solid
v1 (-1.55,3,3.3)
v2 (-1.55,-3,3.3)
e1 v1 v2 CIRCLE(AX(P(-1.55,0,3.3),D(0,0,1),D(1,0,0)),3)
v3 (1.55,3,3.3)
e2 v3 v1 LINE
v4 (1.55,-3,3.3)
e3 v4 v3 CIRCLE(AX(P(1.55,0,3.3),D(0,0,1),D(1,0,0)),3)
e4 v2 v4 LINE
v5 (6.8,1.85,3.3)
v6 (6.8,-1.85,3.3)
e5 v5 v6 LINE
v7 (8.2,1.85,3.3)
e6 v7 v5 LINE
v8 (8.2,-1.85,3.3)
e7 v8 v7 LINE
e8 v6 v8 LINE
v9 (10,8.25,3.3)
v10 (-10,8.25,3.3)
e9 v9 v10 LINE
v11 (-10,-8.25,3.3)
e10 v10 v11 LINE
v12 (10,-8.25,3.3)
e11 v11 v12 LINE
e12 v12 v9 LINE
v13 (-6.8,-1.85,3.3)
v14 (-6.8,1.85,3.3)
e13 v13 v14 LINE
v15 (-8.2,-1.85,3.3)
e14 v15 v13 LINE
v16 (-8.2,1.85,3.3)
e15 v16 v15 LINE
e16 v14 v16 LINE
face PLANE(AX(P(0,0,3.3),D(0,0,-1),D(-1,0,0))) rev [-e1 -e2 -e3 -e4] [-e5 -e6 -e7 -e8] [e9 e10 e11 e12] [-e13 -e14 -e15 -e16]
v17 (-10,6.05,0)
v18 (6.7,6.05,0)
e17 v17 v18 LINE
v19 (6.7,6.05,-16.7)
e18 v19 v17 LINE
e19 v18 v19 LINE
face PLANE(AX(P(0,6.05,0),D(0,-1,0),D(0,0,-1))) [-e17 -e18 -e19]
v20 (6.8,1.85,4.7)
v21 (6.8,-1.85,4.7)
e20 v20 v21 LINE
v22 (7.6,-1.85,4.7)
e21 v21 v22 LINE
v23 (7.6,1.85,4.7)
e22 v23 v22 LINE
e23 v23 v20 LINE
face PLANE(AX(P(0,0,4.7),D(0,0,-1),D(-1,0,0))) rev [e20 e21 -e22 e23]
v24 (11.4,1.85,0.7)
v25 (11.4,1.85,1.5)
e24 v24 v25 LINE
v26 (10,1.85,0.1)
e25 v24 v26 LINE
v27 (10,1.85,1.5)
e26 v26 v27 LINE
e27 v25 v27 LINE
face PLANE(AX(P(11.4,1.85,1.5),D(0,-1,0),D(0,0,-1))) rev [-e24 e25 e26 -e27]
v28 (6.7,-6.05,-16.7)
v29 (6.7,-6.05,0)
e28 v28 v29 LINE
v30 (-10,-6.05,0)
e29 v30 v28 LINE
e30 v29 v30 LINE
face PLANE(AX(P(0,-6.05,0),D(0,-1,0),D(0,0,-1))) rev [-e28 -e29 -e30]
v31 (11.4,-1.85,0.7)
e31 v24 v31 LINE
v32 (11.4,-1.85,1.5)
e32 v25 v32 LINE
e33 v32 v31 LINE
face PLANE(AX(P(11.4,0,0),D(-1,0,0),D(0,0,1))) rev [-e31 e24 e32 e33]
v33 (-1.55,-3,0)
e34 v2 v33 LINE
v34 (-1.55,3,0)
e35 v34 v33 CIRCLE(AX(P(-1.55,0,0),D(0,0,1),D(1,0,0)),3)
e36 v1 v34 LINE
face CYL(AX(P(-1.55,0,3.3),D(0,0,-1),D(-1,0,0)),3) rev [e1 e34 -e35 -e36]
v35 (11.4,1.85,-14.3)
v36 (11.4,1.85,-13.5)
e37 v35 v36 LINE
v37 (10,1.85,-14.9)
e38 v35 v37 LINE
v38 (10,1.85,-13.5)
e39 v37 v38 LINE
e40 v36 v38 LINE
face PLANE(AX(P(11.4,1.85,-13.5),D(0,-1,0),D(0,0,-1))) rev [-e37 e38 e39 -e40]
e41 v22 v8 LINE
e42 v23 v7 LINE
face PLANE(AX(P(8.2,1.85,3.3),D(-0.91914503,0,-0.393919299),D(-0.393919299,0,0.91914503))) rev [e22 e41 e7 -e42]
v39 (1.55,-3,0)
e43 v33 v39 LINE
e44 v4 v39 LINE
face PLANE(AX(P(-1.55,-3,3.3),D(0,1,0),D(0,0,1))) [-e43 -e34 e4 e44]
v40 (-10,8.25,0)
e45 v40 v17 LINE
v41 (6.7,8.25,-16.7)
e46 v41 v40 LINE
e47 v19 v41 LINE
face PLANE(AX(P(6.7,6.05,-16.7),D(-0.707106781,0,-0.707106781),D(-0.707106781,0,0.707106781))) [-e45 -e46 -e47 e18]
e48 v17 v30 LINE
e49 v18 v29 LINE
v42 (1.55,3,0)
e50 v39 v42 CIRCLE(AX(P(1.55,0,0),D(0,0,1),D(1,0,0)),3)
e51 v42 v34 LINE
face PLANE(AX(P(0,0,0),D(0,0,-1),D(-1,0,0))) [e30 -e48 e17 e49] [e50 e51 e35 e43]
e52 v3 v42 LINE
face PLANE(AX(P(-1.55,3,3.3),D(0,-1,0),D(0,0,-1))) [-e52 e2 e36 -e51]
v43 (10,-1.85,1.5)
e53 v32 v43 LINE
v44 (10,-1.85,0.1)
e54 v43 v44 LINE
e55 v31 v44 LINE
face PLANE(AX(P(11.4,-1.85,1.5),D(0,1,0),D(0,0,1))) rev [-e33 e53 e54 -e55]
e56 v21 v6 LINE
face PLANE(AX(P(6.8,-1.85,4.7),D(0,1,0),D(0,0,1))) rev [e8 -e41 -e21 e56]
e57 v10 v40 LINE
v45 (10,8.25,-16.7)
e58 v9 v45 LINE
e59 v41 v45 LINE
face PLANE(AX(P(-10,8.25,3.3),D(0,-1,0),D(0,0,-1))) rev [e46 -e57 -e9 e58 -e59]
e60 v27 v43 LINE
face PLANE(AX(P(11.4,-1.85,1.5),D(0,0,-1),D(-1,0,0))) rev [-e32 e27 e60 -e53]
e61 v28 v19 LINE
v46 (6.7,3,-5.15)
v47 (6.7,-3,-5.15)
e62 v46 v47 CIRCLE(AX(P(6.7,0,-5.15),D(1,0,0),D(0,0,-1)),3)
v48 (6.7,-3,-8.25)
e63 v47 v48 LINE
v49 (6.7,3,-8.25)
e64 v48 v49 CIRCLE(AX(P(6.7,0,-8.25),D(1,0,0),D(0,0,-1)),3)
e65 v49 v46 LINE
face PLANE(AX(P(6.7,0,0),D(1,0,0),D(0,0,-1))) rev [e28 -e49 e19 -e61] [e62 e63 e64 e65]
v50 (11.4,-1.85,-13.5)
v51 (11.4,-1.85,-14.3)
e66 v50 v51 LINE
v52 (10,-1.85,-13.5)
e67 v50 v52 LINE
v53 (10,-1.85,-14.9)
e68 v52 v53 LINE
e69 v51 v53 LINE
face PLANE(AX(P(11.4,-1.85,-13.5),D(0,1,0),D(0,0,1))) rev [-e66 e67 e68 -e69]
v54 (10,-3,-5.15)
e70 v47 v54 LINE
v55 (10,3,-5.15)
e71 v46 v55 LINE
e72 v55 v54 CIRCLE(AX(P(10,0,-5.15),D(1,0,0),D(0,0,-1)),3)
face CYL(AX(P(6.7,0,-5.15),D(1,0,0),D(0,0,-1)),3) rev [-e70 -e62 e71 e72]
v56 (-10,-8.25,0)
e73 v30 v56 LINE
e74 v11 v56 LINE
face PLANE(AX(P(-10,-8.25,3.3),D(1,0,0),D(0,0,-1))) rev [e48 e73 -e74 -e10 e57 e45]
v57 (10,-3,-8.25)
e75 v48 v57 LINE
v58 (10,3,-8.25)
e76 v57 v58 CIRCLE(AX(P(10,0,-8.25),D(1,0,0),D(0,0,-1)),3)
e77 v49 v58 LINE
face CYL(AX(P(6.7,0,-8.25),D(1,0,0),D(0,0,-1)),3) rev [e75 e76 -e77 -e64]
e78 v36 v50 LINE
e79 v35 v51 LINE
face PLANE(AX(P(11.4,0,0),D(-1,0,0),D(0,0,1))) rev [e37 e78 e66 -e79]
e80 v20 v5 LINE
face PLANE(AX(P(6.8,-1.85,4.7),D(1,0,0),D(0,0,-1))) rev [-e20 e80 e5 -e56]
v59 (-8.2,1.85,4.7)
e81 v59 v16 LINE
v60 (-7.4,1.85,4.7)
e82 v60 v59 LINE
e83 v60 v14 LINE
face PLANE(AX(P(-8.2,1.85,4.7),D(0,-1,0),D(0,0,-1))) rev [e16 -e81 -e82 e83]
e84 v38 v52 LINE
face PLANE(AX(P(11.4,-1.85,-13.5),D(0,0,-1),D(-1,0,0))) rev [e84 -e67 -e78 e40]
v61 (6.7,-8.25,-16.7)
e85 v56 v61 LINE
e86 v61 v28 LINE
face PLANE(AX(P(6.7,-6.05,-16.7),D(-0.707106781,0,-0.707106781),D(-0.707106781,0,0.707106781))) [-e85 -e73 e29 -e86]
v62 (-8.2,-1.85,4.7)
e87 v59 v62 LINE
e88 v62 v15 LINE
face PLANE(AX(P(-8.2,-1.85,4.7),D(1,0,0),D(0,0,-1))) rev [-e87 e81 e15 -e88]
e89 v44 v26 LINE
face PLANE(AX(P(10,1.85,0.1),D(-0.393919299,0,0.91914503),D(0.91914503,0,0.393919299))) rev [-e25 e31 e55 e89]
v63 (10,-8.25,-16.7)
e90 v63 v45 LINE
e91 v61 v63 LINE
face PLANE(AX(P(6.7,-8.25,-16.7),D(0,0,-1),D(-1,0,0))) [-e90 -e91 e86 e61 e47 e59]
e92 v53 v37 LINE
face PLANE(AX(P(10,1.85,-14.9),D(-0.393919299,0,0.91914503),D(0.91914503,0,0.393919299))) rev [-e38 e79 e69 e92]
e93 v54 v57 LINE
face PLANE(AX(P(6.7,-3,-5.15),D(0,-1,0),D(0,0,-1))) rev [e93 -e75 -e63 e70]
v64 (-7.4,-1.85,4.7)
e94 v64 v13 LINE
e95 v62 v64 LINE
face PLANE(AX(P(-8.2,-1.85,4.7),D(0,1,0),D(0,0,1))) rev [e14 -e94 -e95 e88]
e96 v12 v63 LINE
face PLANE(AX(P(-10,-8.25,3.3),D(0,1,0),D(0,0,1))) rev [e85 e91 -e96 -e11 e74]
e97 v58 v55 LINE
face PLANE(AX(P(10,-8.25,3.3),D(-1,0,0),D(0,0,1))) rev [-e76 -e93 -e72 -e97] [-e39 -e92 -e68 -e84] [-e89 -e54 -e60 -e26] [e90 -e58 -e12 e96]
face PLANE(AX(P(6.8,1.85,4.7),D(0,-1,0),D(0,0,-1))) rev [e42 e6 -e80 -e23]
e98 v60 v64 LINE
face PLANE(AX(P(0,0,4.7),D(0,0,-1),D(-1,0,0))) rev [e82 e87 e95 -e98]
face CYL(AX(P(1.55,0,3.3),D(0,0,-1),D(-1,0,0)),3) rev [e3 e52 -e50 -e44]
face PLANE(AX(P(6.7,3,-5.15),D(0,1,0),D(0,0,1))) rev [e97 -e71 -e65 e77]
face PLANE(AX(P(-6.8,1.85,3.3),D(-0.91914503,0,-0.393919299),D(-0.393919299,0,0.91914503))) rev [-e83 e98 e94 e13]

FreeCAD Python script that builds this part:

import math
import FreeCAD as App
import Part
import Sketcher

V = App.Vector

doc = App.newDocument("Part")
body = doc.addObject("PartDesign::Body", "Body")

# Sketch on XY plane
sketch1 = body.newObject("Sketcher::SketchObject", "Sketch")
sketch1.AttachmentSupport = (doc.getObject("XY_Plane"), [""])
sketch1.MapMode = "FlatFace"
sketch1.addGeometry([
    Part.LineSegment(V(-10, 8.2, 0), V(-10, -8.2, 0)),  # 0
    Part.LineSegment(V(-10, -8.2, 0), V(10, -8.2, 0)),  # 1
    Part.LineSegment(V(10, -8.2, 0), V(10, 8.2, 0)),  # 2
    Part.LineSegment(V(10, 8.2, 0), V(-10, 8.2, 0)),  # 3
    Part.ArcOfCircle(Part.Circle(V(-1.6, 0, 0), V(0, 0, 1), 3), math.radians(90), math.radians(270)),  # 4
    Part.LineSegment(V(-1.6, 3, 0), V(1.6, 3, 0)),  # 5
    Part.ArcOfCircle(Part.Circle(V(1.6, 0, 0), V(0, 0, 1), 3), math.radians(-90), math.radians(90)),  # 6
    Part.LineSegment(V(1.6, -3, 0), V(-1.6, -3, 0)),  # 7
], False)
sketch1.addConstraint([
    Sketcher.Constraint("Coincident", 0, 2, 1, 1),
    Sketcher.Constraint("Coincident", 1, 2, 2, 1),
    Sketcher.Constraint("Coincident", 2, 2, 3, 1),
    Sketcher.Constraint("Coincident", 3, 2, 0, 1),
    Sketcher.Constraint("Tangent", 4, 1, 5, 1),
    Sketcher.Constraint("Tangent", 5, 2, 6, 2),
    Sketcher.Constraint("Tangent", 6, 1, 7, 1),
    Sketcher.Constraint("Tangent", 7, 2, 4, 2),
    Sketcher.Constraint("Vertical", 0),
    Sketcher.Constraint("Horizontal", 1),
    Sketcher.Constraint("Vertical", 2),
    Sketcher.Constraint("Horizontal", 3),
    Sketcher.Constraint("Horizontal", 5),
    Sketcher.Constraint("Horizontal", 7),
    Sketcher.Constraint("Symmetric", 4, 3, 6, 3, -1, 1),
    Sketcher.Constraint("Symmetric", 0, 2, 2, 2, -1, 1),
    Sketcher.Constraint("Radius", 4, 3.0),
    Sketcher.Constraint("DistanceX", 1, 1, 1, 2, 20.0),
    Sketcher.Constraint("DistanceX", 5, 1, 5, 2, 3.1),
    Sketcher.Constraint("DistanceY", 0, 2, 0, 1, 16.5),
])
pad1 = body.newObject("PartDesign::Pad", "Pad")
pad1.Profile = sketch1
pad1.Length = 3.3

# Sketch on XY plane
sketch2 = body.newObject("Sketcher::SketchObject", "Sketch001")
sketch2.AttachmentSupport = (doc.getObject("XY_Plane"), [""])
sketch2.MapMode = "FlatFace"
sketch2.AttachmentOffset = App.Placement(V(0, 0, 3.3), App.Rotation())
sketch2.addGeometry([
    Part.LineSegment(V(-8.2, 1.9, 0), V(-8.2, -1.9, 0)),  # 0
    Part.LineSegment(V(-8.2, -1.9, 0), V(-6.8, -1.9, 0)),  # 1
    Part.LineSegment(V(-6.8, -1.9, 0), V(-6.8, 1.9, 0)),  # 2
    Part.LineSegment(V(-6.8, 1.9, 0), V(-8.2, 1.9, 0)),  # 3
    Part.LineSegment(V(6.8, 1.9, 0), V(6.8, -1.9, 0)),  # 4
    Part.LineSegment(V(6.8, -1.9, 0), V(8.2, -1.9, 0)),  # 5
    Part.LineSegment(V(8.2, -1.9, 0), V(8.2, 1.9, 0)),  # 6
    Part.LineSegment(V(8.2, 1.9, 0), V(6.8, 1.9, 0)),  # 7
], False)
sketch2.addConstraint([
    Sketcher.Constraint("Coincident", 0, 2, 1, 1),
    Sketcher.Constraint("Coincident", 1, 2, 2, 1),
    Sketcher.Constraint("Coincident", 2, 2, 3, 1),
    Sketcher.Constraint("Coincident", 3, 2, 0, 1),
    Sketcher.Constraint("Coincident", 4, 2, 5, 1),
    Sketcher.Constraint("Coincident", 5, 2, 6, 1),
    Sketcher.Constraint("Coincident", 6, 2, 7, 1),
    Sketcher.Constraint("Coincident", 7, 2, 4, 1),
    Sketcher.Constraint("Vertical", 0),
    Sketcher.Constraint("Horizontal", 1),
    Sketcher.Constraint("Vertical", 2),
    Sketcher.Constraint("Horizontal", 3),
    Sketcher.Constraint("Vertical", 4),
    Sketcher.Constraint("Horizontal", 5),
    Sketcher.Constraint("Vertical", 6),
    Sketcher.Constraint("Horizontal", 7),
    Sketcher.Constraint("Symmetric", 2, 2, 4, 2, -1, 1),
    Sketcher.Constraint("Symmetric", 0, 2, 6, 2, -1, 1),
    Sketcher.Constraint("Horizontal", 1, 2, 4, 2),
    Sketcher.Constraint("DistanceX", 1, 1, 1, 2, 1.4),
    Sketcher.Constraint("DistanceY", 0, 2, 0, 1, 3.7),
    Sketcher.Constraint("DistanceX", 0, 2, 4, 2, 15.0),
])
pad2 = body.newObject("PartDesign::Pad", "Pad001")
pad2.Profile = sketch2
pad2.Length = 1.4

# Sketch on XZ plane
sketch3 = body.newObject("Sketcher::SketchObject", "Sketch002")
sketch3.AttachmentSupport = (doc.getObject("XZ_Plane"), [""])
sketch3.MapMode = "FlatFace"
sketch3.AttachmentOffset = App.Placement(V(0, 0, 1.85), App.Rotation())
sketch3.addGeometry([
    Part.LineSegment(V(7.6, 4.7, 0), V(8.2, 3.3, 0)),
    Part.LineSegment(V(8.2, 3.3, 0), V(8.2, 4.7, 0)),
    Part.LineSegment(V(8.2, 4.7, 0), V(7.6, 4.7, 0)),
], False)
sketch3.addConstraint([
    Sketcher.Constraint("Coincident", 0, 2, 1, 1),
    Sketcher.Constraint("Coincident", 1, 2, 2, 1),
    Sketcher.Constraint("Coincident", 2, 2, 0, 1),
    Sketcher.Constraint("Vertical", 1),
    Sketcher.Constraint("Horizontal", 2),
    Sketcher.Constraint("DistanceX", 2, 2, 2, 1, 0.6),
    Sketcher.Constraint("DistanceY", 1, 1, 1, 2, 1.4),
    Sketcher.Constraint("DistanceX", -1, 1, 0, 2, 8.2),
    Sketcher.Constraint("DistanceY", -1, 1, 0, 2, 3.3),
])
pocket1 = body.newObject("PartDesign::Pocket", "Pocket")
pocket1.Profile = sketch3
pocket1.Length = 3.7

# Sketch on XZ plane
sketch4 = body.newObject("Sketcher::SketchObject", "Sketch003")
sketch4.AttachmentSupport = (doc.getObject("XZ_Plane"), [""])
sketch4.MapMode = "FlatFace"
sketch4.AttachmentOffset = App.Placement(V(0, 0, 1.85), App.Rotation())
sketch4.addGeometry([
    Part.LineSegment(V(-7.4, 4.7, 0), V(-6.8, 3.3, 0)),
    Part.LineSegment(V(-6.8, 3.3, 0), V(-6.8, 4.7, 0)),
    Part.LineSegment(V(-6.8, 4.7, 0), V(-7.4, 4.7, 0)),
], False)
sketch4.addConstraint([
    Sketcher.Constraint("Coincident", 0, 2, 1, 1),
    Sketcher.Constraint("Coincident", 1, 2, 2, 1),
    Sketcher.Constraint("Coincident", 2, 2, 0, 1),
    Sketcher.Constraint("Vertical", 1),
    Sketcher.Constraint("Horizontal", 2),
    Sketcher.Constraint("DistanceX", 2, 2, 2, 1, 0.6),
    Sketcher.Constraint("DistanceY", 1, 1, 1, 2, 1.4),
    Sketcher.Constraint("DistanceX", 0, 2, -1, 1, 6.8),
    Sketcher.Constraint("DistanceY", -1, 1, 0, 2, 3.3),
])
pocket2 = body.newObject("PartDesign::Pocket", "Pocket001")
pocket2.Profile = sketch4
pocket2.Length = 3.7

# Sketch on YZ plane
sketch5 = body.newObject("Sketcher::SketchObject", "Sketch004")
sketch5.AttachmentSupport = (doc.getObject("YZ_Plane"), [""])
sketch5.MapMode = "FlatFace"
sketch5.AttachmentOffset = App.Placement(V(0, 0, 10), App.Rotation())
sketch5.addGeometry([
    Part.LineSegment(V(8.2, 3.3, 0), V(-8.2, 3.3, 0)),  # 0
    Part.LineSegment(V(-8.2, 3.3, 0), V(-8.2, -16.7, 0)),  # 1
    Part.LineSegment(V(-8.2, -16.7, 0), V(8.2, -16.7, 0)),  # 2
    Part.LineSegment(V(8.2, -16.7, 0), V(8.2, 3.3, 0)),  # 3
    Part.ArcOfCircle(Part.Circle(V(0, -5.2, 0), V(0, 0, 1), 3), math.radians(0), math.radians(180)),  # 4
    Part.LineSegment(V(3, -5.2, 0), V(3, -8.2, 0)),  # 5
    Part.ArcOfCircle(Part.Circle(V(0, -8.2, 0), V(0, 0, 1), 3), math.radians(180), math.radians(360)),  # 6
    Part.LineSegment(V(-3, -8.2, 0), V(-3, -5.2, 0)),  # 7
], False)
sketch5.addConstraint([
    Sketcher.Constraint("Coincident", 0, 2, 1, 1),
    Sketcher.Constraint("Coincident", 1, 2, 2, 1),
    Sketcher.Constraint("Coincident", 2, 2, 3, 1),
    Sketcher.Constraint("Coincident", 3, 2, 0, 1),
    Sketcher.Constraint("Tangent", 4, 1, 5, 1),
    Sketcher.Constraint("Tangent", 5, 2, 6, 2),
    Sketcher.Constraint("Tangent", 6, 1, 7, 1),
    Sketcher.Constraint("Tangent", 7, 2, 4, 2),
    Sketcher.Constraint("Horizontal", 0),
    Sketcher.Constraint("Vertical", 1),
    Sketcher.Constraint("Horizontal", 2),
    Sketcher.Constraint("Vertical", 3),
    Sketcher.Constraint("Vertical", 5),
    Sketcher.Constraint("Vertical", 7),
    Sketcher.Constraint("PointOnObject", 4, 3, -2),
    Sketcher.Constraint("Radius", 4, 3.0),
    Sketcher.Constraint("DistanceY", 1, 2, 1, 1, 20.0),
    Sketcher.Constraint("DistanceX", 0, 2, 0, 1, 16.5),
    Sketcher.Constraint("DistanceY", 5, 2, 5, 1, 3.1),
    Sketcher.Constraint("DistanceY", -1, 1, 0, 2, 3.3),
    Sketcher.Constraint("DistanceY", 4, 3, -1, 1, 5.15),
    Sketcher.Constraint("DistanceX", 0, 2, -1, 1, 8.25),
])
pad3 = body.newObject("PartDesign::Pad", "Pad002")
pad3.Profile = sketch5
pad3.Length = 3.3
pad3.Reversed = True

# Sketch on YZ plane
sketch6 = body.newObject("Sketcher::SketchObject", "Sketch005")
sketch6.AttachmentSupport = (doc.getObject("YZ_Plane"), [""])
sketch6.MapMode = "FlatFace"
sketch6.AttachmentOffset = App.Placement(V(0, 0, 10), App.Rotation())
sketch6.addGeometry([
    Part.LineSegment(V(1.9, 1.5, 0), V(-1.9, 1.5, 0)),  # 0
    Part.LineSegment(V(-1.9, 1.5, 0), V(-1.9, 0.1, 0)),  # 1
    Part.LineSegment(V(-1.9, 0.1, 0), V(1.9, 0.1, 0)),  # 2
    Part.LineSegment(V(1.9, 0.1, 0), V(1.9, 1.5, 0)),  # 3
    Part.LineSegment(V(1.9, -13.5, 0), V(-1.9, -13.5, 0)),  # 4
    Part.LineSegment(V(-1.9, -13.5, 0), V(-1.9, -14.9, 0)),  # 5
    Part.LineSegment(V(-1.9, -14.9, 0), V(1.9, -14.9, 0)),  # 6
    Part.LineSegment(V(1.9, -14.9, 0), V(1.9, -13.5, 0)),  # 7
], False)
sketch6.addConstraint([
    Sketcher.Constraint("Coincident", 0, 2, 1, 1),
    Sketcher.Constraint("Coincident", 1, 2, 2, 1),
    Sketcher.Constraint("Coincident", 2, 2, 3, 1),
    Sketcher.Constraint("Coincident", 3, 2, 0, 1),
    Sketcher.Constraint("Coincident", 4, 2, 5, 1),
    Sketcher.Constraint("Coincident", 5, 2, 6, 1),
    Sketcher.Constraint("Coincident", 6, 2, 7, 1),
    Sketcher.Constraint("Coincident", 7, 2, 4, 1),
    Sketcher.Constraint("Horizontal", 0),
    Sketcher.Constraint("Vertical", 1),
    Sketcher.Constraint("Horizontal", 2),
    Sketcher.Constraint("Vertical", 3),
    Sketcher.Constraint("Horizontal", 4),
    Sketcher.Constraint("Vertical", 5),
    Sketcher.Constraint("Horizontal", 6),
    Sketcher.Constraint("Vertical", 7),
    Sketcher.Constraint("Vertical", 1, 2, 4, 2),
    Sketcher.Constraint("Vertical", 3, 2, 6, 2),
    Sketcher.Constraint("Equal", 3, 5),
    Sketcher.Constraint("DistanceX", 0, 2, 0, 1, 3.7),
    Sketcher.Constraint("DistanceY", 1, 2, 1, 1, 1.4),
    Sketcher.Constraint("DistanceY", 4, 2, 0, 2, 15.0),
    Sketcher.Constraint("DistanceY", -1, 1, 0, 2, 1.5),
    Sketcher.Constraint("DistanceX", 0, 2, -1, 1, 1.85),
])
pad4 = body.newObject("PartDesign::Pad", "Pad003")
pad4.Profile = sketch6
pad4.Length = 1.4

# Sketch on XZ plane
sketch7 = body.newObject("Sketcher::SketchObject", "Sketch006")
sketch7.AttachmentSupport = (doc.getObject("XZ_Plane"), [""])
sketch7.MapMode = "FlatFace"
sketch7.AttachmentOffset = App.Placement(V(0, 0, 1.85), App.Rotation())
sketch7.addGeometry([
    Part.LineSegment(V(10, 0.1, 0), V(11.4, 0.1, 0)),
    Part.LineSegment(V(11.4, 0.1, 0), V(11.4, 0.7, 0)),
    Part.LineSegment(V(11.4, 0.7, 0), V(10, 0.1, 0)),
], False)
sketch7.addConstraint([
    Sketcher.Constraint("Coincident", 0, 2, 1, 1),
    Sketcher.Constraint("Coincident", 1, 2, 2, 1),
    Sketcher.Constraint("Coincident", 2, 2, 0, 1),
    Sketcher.Constraint("Horizontal", 0),
    Sketcher.Constraint("Vertical", 1),
    Sketcher.Constraint("DistanceX", 0, 1, 0, 2, 1.4),
    Sketcher.Constraint("DistanceY", 1, 1, 1, 2, 0.6),
    Sketcher.Constraint("DistanceX", -1, 1, 2, 2, 10.0),
    Sketcher.Constraint("DistanceY", -1, 1, 0, 2, 0.1),
])
pocket3 = body.newObject("PartDesign::Pocket", "Pocket002")
pocket3.Profile = sketch7
pocket3.Length = 3.7

# Sketch on XZ plane
sketch8 = body.newObject("Sketcher::SketchObject", "Sketch007")
sketch8.AttachmentSupport = (doc.getObject("XZ_Plane"), [""])
sketch8.MapMode = "FlatFace"
sketch8.AttachmentOffset = App.Placement(V(0, 0, 1.85), App.Rotation())
sketch8.addGeometry([
    Part.LineSegment(V(10, -14.9, 0), V(11.4, -14.9, 0)),
    Part.LineSegment(V(11.4, -14.9, 0), V(11.4, -14.3, 0)),
    Part.LineSegment(V(11.4, -14.3, 0), V(10, -14.9, 0)),
], False)
sketch8.addConstraint([
    Sketcher.Constraint("Coincident", 0, 2, 1, 1),
    Sketcher.Constraint("Coincident", 1, 2, 2, 1),
    Sketcher.Constraint("Coincident", 2, 2, 0, 1),
    Sketcher.Constraint("Horizontal", 0),
    Sketcher.Constraint("Vertical", 1),
    Sketcher.Constraint("DistanceX", 0, 1, 0, 2, 1.4),
    Sketcher.Constraint("DistanceY", 1, 1, 1, 2, 0.6),
    Sketcher.Constraint("DistanceX", -1, 1, 2, 2, 10.0),
    Sketcher.Constraint("DistanceY", 0, 2, -1, 1, 14.9),
])
pocket4 = body.newObject("PartDesign::Pocket", "Pocket003")
pocket4.Profile = sketch8
pocket4.Length = 3.7

# Sketch on XZ plane
sketch9 = body.newObject("Sketcher::SketchObject", "Sketch008")
sketch9.AttachmentSupport = (doc.getObject("XZ_Plane"), [""])
sketch9.MapMode = "FlatFace"
sketch9.AttachmentOffset = App.Placement(V(0, 0, 8.25), App.Rotation())
sketch9.addGeometry([
    Part.LineSegment(V(-10, 0, 0), V(7, -17, 0)),
    Part.LineSegment(V(7, -17, 0), V(7, 0, 0)),
    Part.LineSegment(V(7, 0, 0), V(-10, 0, 0)),
], False)
sketch9.addConstraint([
    Sketcher.Constraint("Coincident", 0, 2, 1, 1),
    Sketcher.Constraint("Coincident", 1, 2, 2, 1),
    Sketcher.Constraint("Coincident", 2, 2, 0, 1),
    Sketcher.Constraint("Vertical", 1),
    Sketcher.Constraint("Horizontal", 2),
    Sketcher.Constraint("PointOnObject", 1, 2, -1),
    Sketcher.Constraint("Equal", 2, 1),
    Sketcher.Constraint("DistanceX", 2, 2, 2, 1, 16.7),
    Sketcher.Constraint("DistanceX", 2, 2, -1, 1, 10.0),
])
pad5 = body.newObject("PartDesign::Pad", "Pad004")
pad5.Profile = sketch9
pad5.Length = 2.2
pad5.Reversed = True

# Sketch on XZ plane
sketch10 = body.newObject("Sketcher::SketchObject", "Sketch009")
sketch10.AttachmentSupport = (doc.getObject("XZ_Plane"), [""])
sketch10.MapMode = "FlatFace"
sketch10.AttachmentOffset = App.Placement(V(0, 0, -8.25), App.Rotation())
sketch10.addGeometry([
    Part.LineSegment(V(7, -17, 0), V(-10, 0, 0)),
    Part.LineSegment(V(-10, 0, 0), V(7, 0, 0)),
    Part.LineSegment(V(7, 0, 0), V(7, -17, 0)),
], False)
sketch10.addConstraint([
    Sketcher.Constraint("Coincident", 0, 2, 1, 1),
    Sketcher.Constraint("Coincident", 1, 2, 2, 1),
    Sketcher.Constraint("Coincident", 2, 2, 0, 1),
    Sketcher.Constraint("Horizontal", 1),
    Sketcher.Constraint("Vertical", 2),
    Sketcher.Constraint("PointOnObject", 0, 2, -1),
    Sketcher.Constraint("Equal", 1, 2),
    Sketcher.Constraint("DistanceX", 1, 1, 1, 2, 16.7),
    Sketcher.Constraint("DistanceX", 0, 2, -1, 1, 10.0),
])
pad6 = body.newObject("PartDesign::Pad", "Pad005")
pad6.Profile = sketch10
pad6.Length = 2.2

doc.recompute()
